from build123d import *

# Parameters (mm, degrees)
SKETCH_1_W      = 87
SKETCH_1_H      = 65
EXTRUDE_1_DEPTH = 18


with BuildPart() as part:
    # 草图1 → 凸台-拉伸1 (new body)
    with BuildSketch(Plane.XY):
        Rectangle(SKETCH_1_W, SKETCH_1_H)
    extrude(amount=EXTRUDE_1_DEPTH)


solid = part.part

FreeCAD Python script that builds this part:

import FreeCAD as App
import Part
import Sketcher

V = App.Vector
Q = App.Units.Quantity

doc = App.newDocument("Part")
body = doc.addObject("PartDesign::Body", "Body")

sketch1 = doc.addObject("Sketcher::SketchObject", "Sketch")
body.addObject(sketch1)
sketch1.AttachmentSupport = (doc.XY_Plane, [""])
sketch1.MapMode = "FlatFace"
sketch1.addGeometry(Part.LineSegment(V(-44, 32, 0), V(-44, -32, 0)), False)
sketch1.addGeometry(Part.LineSegment(V(-44, -32, 0), V(44, -32, 0)), False)
sketch1.addGeometry(Part.LineSegment(V(44, -32, 0), V(44, 32, 0)), False)
sketch1.addGeometry(Part.LineSegment(V(44, 32, 0), V(-44, 32, 0)), False)
sketch1.addConstraint(Sketcher.Constraint("Coincident", 0, 2, 1, 1))
sketch1.addConstraint(Sketcher.Constraint("Coincident", 1, 2, 2, 1))
sketch1.addConstraint(Sketcher.Constraint("Coincident", 2, 2, 3, 1))
sketch1.addConstraint(Sketcher.Constraint("Coincident", 3, 2, 0, 1))
sketch1.addConstraint(Sketcher.Constraint("Vertical", 0))
sketch1.addConstraint(Sketcher.Constraint("Horizontal", 1))
sketch1.addConstraint(Sketcher.Constraint("Vertical", 2))
sketch1.addConstraint(Sketcher.Constraint("Horizontal", 3))
sketch1.addConstraint(Sketcher.Constraint("Symmetric", 0, 2, 2, 2, -1, 1))
sketch1.addConstraint(Sketcher.Constraint("DistanceX", 1, 1, 1, 2, Q("87 mm")))
sketch1.addConstraint(Sketcher.Constraint("DistanceY", 0, 2, 0, 1, Q("65 mm")))
pad1 = doc.addObject("PartDesign::Pad", "Pad")
body.addObject(pad1)
pad1.Profile = sketch1
pad1.Length = 18

doc.recompute()
